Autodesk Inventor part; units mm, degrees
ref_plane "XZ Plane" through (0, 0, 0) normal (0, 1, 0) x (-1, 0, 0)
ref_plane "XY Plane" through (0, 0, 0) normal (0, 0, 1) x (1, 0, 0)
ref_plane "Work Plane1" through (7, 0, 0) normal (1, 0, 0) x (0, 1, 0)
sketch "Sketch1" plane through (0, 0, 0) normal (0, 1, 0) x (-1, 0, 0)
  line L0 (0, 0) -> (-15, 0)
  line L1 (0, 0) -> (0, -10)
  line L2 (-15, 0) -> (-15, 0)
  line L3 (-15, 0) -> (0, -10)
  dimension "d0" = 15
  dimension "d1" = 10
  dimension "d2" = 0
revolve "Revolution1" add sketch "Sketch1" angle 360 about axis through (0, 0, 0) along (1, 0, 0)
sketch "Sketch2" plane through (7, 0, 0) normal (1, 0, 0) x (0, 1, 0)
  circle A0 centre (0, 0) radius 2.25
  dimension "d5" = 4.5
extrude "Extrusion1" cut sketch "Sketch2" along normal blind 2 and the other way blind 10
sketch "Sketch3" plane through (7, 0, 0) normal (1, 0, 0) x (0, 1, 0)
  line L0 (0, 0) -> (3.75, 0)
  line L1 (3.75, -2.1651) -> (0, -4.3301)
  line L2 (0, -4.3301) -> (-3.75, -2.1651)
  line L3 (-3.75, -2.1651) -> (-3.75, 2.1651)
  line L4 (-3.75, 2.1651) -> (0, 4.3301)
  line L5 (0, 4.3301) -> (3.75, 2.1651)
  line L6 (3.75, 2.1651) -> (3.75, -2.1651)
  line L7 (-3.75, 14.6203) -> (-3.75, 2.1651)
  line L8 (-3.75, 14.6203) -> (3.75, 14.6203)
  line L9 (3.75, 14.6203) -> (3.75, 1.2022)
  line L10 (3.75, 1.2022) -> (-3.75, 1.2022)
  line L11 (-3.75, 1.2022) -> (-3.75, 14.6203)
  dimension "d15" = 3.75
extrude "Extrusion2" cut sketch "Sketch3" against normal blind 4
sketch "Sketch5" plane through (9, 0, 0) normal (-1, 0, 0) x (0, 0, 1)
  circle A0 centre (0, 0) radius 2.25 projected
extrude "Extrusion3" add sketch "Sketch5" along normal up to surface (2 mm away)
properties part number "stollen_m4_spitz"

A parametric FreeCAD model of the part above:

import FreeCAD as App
import Part
import Sketcher

V = App.Vector
Q = App.Units.Quantity

doc = App.newDocument("Part")
params = doc.addObject("Spreadsheet::Sheet", "Params")
for row, (alias, value) in enumerate([
    ("sketch1_width", "15 mm"),
    ("sketch1_height", "10 mm"),
    ("revolution_angle", "360 deg"),
    ("sketch2_diameter", "4.5 mm"),
    ("pocket1_length", "2 mm"),
    ("pocket1_length2", "10 mm"),
    ("pocket2_length", "4 mm"),
    ("sketch4_diameter", "4.5 mm"),
    ("pad1_length", "2 mm"),
], start=1):
    params.set(f"A{row}", alias)
    params.set(f"B{row}", "=" + value)
    params.setAlias(f"B{row}", alias)

body = doc.addObject("PartDesign::Body", "Body")

# Sketch on XZ plane
sketch1 = body.newObject("Sketcher::SketchObject", "Sketch")
sketch1.AttachmentSupport = (doc.getObject("XZ_Plane"), [""])
sketch1.MapMode = "FlatFace"
sketch1.addGeometry([
    Part.LineSegment(V(0, -10, 0), V(0, 0, 0)),
    Part.LineSegment(V(0, 0, 0), V(15, 0, 0)),
    Part.LineSegment(V(15, 0, 0), V(0, -10, 0)),
], False)
sketch1.addConstraint([
    Sketcher.Constraint("Coincident", 0, 2, 1, 1),
    Sketcher.Constraint("Coincident", 1, 2, 2, 1),
    Sketcher.Constraint("Coincident", 2, 2, 0, 1),
    Sketcher.Constraint("Vertical", 0),
    Sketcher.Constraint("Horizontal", 1),
    Sketcher.Constraint("Coincident", 0, 2, -1, 1),
    Sketcher.Constraint("DistanceX", 1, 1, 1, 2, 15.0),
    Sketcher.Constraint("DistanceY", 0, 1, 0, 2, 10.0),
])
sketch1.setExpression("Constraints[6]", "Params.sketch1_width")
sketch1.setExpression("Constraints[7]", "Params.sketch1_height")
revolution = body.newObject("PartDesign::Revolution", "Revolution")
revolution.Profile = sketch1
revolution.ReferenceAxis = (sketch1, ["H_Axis"])
revolution.setExpression("Angle", "Params.revolution_angle")

# Sketch on YZ plane
sketch2 = body.newObject("Sketcher::SketchObject", "Sketch001")
sketch2.AttachmentSupport = (doc.getObject("YZ_Plane"), [""])
sketch2.MapMode = "FlatFace"
sketch2.AttachmentOffset = App.Placement(V(0, 0, 7), App.Rotation())
sketch2.addGeometry(Part.Circle(V(0, 0, 0), V(0, 0, 1), 2.2), False)
sketch2.addConstraint([
    Sketcher.Constraint("Coincident", 0, 3, -1, 1),
    Sketcher.Constraint("Diameter", 0, 4.5),
])
sketch2.setExpression("Constraints[1]", "Params.sketch2_diameter")
pocket1 = body.newObject("PartDesign::Pocket", "Pocket")
pocket1.Profile = sketch2
pocket1.Type = "TwoLengths"
pocket1.setExpression("Length", "Params.pocket1_length")
pocket1.setExpression("Length2", "Params.pocket1_length2")
pocket1.Reversed = True

# Sketch on YZ plane
sketch3 = body.newObject("Sketcher::SketchObject", "Sketch002")
sketch3.AttachmentSupport = (doc.getObject("YZ_Plane"), [""])
sketch3.MapMode = "FlatFace"
sketch3.AttachmentOffset = App.Placement(V(0, 0, 7), App.Rotation())
sketch3.addGeometry([
    Part.LineSegment(V(0, -4.3, 0), V(3.8, -2.2, 0)),  # 0
    Part.LineSegment(V(3.8, -2.2, 0), V(3.8, 14.6, 0)),  # 1
    Part.LineSegment(V(3.8, 14.6, 0), V(-3.8, 14.6, 0)),  # 2
    Part.LineSegment(V(-3.8, 14.6, 0), V(-3.8, -2.2, 0)),  # 3
    Part.LineSegment(V(-3.8, -2.2, 0), V(0, -4.3, 0)),  # 4
], False)
sketch3.addConstraint([
    Sketcher.Constraint("Coincident", 0, 2, 1, 1),
    Sketcher.Constraint("Coincident", 1, 2, 2, 1),
    Sketcher.Constraint("Coincident", 2, 2, 3, 1),
    Sketcher.Constraint("Coincident", 3, 2, 4, 1),
    Sketcher.Constraint("Coincident", 4, 2, 0, 1),
    Sketcher.Constraint("Vertical", 1),
    Sketcher.Constraint("Horizontal", 2),
    Sketcher.Constraint("Vertical", 3),
    Sketcher.Constraint("Symmetric", 0, 2, 3, 2, -2),
    Sketcher.Constraint("PointOnObject", 4, 2, -2),
    Sketcher.Constraint("DistanceX", -1, 1, 0, 2, 3.75),
    Sketcher.Constraint("Angle", 0, Q("29.9993 deg")),
    Sketcher.Constraint("DistanceY", 4, 2, -1, 1, 4.33),
    Sketcher.Constraint("DistanceY", 1, 1, 1, 2, 16.7854),
])
pocket2 = body.newObject("PartDesign::Pocket", "Pocket001")
pocket2.Profile = sketch3
pocket2.setExpression("Length", "Params.pocket2_length")

# Sketch on YZ plane
sketch4 = body.newObject("Sketcher::SketchObject", "Sketch003")
sketch4.AttachmentSupport = (doc.getObject("YZ_Plane"), [""])
sketch4.MapMode = "FlatFace"
sketch4.AttachmentOffset = App.Placement(V(0, 0, 9), App.Rotation())
sketch4.addGeometry(Part.Circle(V(0, 0, 0), V(0, 0, 1), 2.2), False)
sketch4.addConstraint([
    Sketcher.Constraint("Coincident", 0, 3, -1, 1),
    Sketcher.Constraint("Diameter", 0, 4.5),
])
sketch4.setExpression("Constraints[1]", "Params.sketch4_diameter")
pad1 = body.newObject("PartDesign::Pad", "Pad")
pad1.Profile = sketch4
pad1.setExpression("Length", "Params.pad1_length")
pad1.Reversed = True

doc.recompute()
